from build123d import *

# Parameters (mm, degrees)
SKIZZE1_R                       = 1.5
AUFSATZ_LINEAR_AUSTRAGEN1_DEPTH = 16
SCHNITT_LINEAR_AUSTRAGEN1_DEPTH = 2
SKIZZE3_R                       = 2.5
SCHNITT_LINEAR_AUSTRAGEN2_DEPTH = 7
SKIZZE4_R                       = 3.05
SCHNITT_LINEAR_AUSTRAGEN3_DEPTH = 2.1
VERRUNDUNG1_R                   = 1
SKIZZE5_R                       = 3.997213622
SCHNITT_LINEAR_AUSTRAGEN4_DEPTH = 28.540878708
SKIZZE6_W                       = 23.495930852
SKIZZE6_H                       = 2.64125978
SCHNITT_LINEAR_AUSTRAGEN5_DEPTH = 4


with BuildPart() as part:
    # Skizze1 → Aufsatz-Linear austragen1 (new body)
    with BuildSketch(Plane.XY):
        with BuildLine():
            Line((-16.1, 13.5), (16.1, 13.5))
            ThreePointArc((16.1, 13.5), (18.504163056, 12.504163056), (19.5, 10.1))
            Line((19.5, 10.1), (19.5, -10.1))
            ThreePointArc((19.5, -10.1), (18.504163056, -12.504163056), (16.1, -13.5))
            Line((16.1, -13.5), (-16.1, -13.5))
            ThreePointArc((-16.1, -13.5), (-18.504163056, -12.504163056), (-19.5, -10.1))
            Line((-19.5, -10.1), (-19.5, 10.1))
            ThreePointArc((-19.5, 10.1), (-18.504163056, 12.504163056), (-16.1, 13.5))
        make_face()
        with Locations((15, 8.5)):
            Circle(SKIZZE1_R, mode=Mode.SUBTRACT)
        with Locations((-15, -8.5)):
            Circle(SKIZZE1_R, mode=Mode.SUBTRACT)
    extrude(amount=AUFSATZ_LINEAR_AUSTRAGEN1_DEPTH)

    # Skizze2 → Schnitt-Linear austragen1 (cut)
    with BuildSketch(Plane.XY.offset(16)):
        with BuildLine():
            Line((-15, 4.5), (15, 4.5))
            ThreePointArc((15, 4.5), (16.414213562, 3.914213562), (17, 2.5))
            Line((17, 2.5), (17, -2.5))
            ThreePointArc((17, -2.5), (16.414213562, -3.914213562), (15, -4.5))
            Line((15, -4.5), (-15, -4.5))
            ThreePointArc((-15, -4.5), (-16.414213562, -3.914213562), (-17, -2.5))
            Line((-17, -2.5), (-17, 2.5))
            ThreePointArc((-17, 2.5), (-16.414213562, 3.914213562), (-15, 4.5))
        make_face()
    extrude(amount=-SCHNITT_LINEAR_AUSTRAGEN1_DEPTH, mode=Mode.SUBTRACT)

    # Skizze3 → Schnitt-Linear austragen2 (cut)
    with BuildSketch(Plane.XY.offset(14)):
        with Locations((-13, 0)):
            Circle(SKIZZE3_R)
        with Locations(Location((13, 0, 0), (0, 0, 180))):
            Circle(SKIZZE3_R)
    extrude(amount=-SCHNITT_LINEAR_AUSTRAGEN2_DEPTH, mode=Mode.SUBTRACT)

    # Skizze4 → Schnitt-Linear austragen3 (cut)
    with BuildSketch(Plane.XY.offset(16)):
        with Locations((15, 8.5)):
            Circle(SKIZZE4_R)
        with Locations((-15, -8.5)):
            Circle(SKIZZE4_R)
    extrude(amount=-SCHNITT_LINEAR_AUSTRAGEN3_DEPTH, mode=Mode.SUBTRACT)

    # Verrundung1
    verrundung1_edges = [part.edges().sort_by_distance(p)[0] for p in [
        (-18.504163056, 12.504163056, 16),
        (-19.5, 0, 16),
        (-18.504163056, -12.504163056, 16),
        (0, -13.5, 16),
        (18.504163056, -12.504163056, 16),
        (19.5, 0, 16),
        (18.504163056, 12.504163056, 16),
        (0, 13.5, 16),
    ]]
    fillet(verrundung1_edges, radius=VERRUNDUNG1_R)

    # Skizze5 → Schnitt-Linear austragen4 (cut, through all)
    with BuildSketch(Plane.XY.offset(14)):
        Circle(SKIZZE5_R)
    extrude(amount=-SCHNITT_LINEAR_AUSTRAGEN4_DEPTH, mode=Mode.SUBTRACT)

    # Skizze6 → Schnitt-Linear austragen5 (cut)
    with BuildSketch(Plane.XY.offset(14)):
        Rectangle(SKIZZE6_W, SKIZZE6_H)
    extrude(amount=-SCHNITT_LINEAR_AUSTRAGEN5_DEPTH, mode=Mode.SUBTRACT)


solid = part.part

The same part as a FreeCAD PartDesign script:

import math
import FreeCAD as App
import Part
import Sketcher

V = App.Vector


def edges_at(feature, points):
    """Names of the edges that pass closest to the given points."""
    edges = feature.Shape.Edges
    near = lambda p: min(range(len(edges)), key=lambda i: edges[i].distToShape(Part.Vertex(*p))[0])
    return sorted({f"Edge{near(p) + 1}" for p in points})

doc = App.newDocument("Part")
body = doc.addObject("PartDesign::Body", "Body")

# Sketch on XY plane
sketch1 = doc.addObject("Sketcher::SketchObject", "Sketch")
body.addObject(sketch1)
sketch1.AttachmentSupport = (doc.XY_Plane, [""])
sketch1.MapMode = "FlatFace"
sketch1.addGeometry([
    Part.LineSegment(V(16.1, 13.5, 0), V(-16.1, 13.5, 0)),  # 0
    Part.ArcOfCircle(Part.Circle(V(-16.1, 10.1, 0), V(0, 0, 1), 3.4), math.radians(90), math.radians(180)),  # 1
    Part.LineSegment(V(-19.5, 10.1, 0), V(-19.5, -10.1, 0)),  # 2
    Part.ArcOfCircle(Part.Circle(V(-16.1, -10.1, 0), V(0, 0, 1), 3.4), math.radians(180), math.radians(270)),  # 3
    Part.LineSegment(V(-16.1, -13.5, 0), V(16.1, -13.5, 0)),  # 4
    Part.ArcOfCircle(Part.Circle(V(16.1, -10.1, 0), V(0, 0, 1), 3.4), math.radians(-90), math.radians(0)),  # 5
    Part.LineSegment(V(19.5, -10.1, 0), V(19.5, 10.1, 0)),  # 6
    Part.ArcOfCircle(Part.Circle(V(16.1, 10.1, 0), V(0, 0, 1), 3.4), math.radians(0), math.radians(90)),  # 7
    Part.Circle(V(-15, -8.5, 0), V(0, 0, 1), 1.5),  # 8
    Part.Circle(V(15, 8.5, 0), V(0, 0, 1), 1.5),  # 9
], False)
sketch1.addConstraint([
    Sketcher.Constraint("Tangent", 0, 2, 1, 1),
    Sketcher.Constraint("Tangent", 1, 2, 2, 1),
    Sketcher.Constraint("Tangent", 2, 2, 3, 1),
    Sketcher.Constraint("Tangent", 3, 2, 4, 1),
    Sketcher.Constraint("Tangent", 4, 2, 5, 1),
    Sketcher.Constraint("Tangent", 5, 2, 6, 1),
    Sketcher.Constraint("Tangent", 6, 2, 7, 1),
    Sketcher.Constraint("Tangent", 7, 2, 0, 1),
    Sketcher.Constraint("Horizontal", 0),
    Sketcher.Constraint("Vertical", 2),
    Sketcher.Constraint("Horizontal", 4),
    Sketcher.Constraint("Vertical", 6),
    Sketcher.Constraint("Equal", 1, 3),
    Sketcher.Constraint("Equal", 3, 5),
    Sketcher.Constraint("Equal", 5, 7),
    Sketcher.Constraint("Equal", 8, 9),
    Sketcher.Constraint("Symmetric", 1, 3, 5, 3, -1, 1),
    Sketcher.Constraint("Symmetric", 8, 3, 9, 3, -1, 1),
    Sketcher.Constraint("Diameter", 8, 3.0),
    Sketcher.Constraint("Radius", 1, 3.4),
    Sketcher.Constraint("DistanceX", 0, 2, 0, 1, 32.2),
    Sketcher.Constraint("DistanceY", 2, 2, 2, 1, 20.2),
    Sketcher.Constraint("DistanceX", 8, 3, -1, 1, 15.0),
    Sketcher.Constraint("DistanceY", 8, 3, 9, 3, 17.0),
])
pad1 = doc.addObject("PartDesign::Pad", "Pad")
body.addObject(pad1)
pad1.Profile = sketch1
pad1.Length = 16

# Sketch on XY plane
sketch2 = doc.addObject("Sketcher::SketchObject", "Sketch001")
body.addObject(sketch2)
sketch2.AttachmentSupport = (doc.XY_Plane, [""])
sketch2.MapMode = "FlatFace"
sketch2.AttachmentOffset = App.Placement(V(0, 0, 16), App.Rotation())
sketch2.addGeometry([
    Part.LineSegment(V(15, 4.5, 0), V(-15, 4.5, 0)),  # 0
    Part.ArcOfCircle(Part.Circle(V(-15, 2.5, 0), V(0, 0, 1), 2), math.radians(90), math.radians(180)),  # 1
    Part.LineSegment(V(-17, 2.5, 0), V(-17, -2.5, 0)),  # 2
    Part.ArcOfCircle(Part.Circle(V(-15, -2.5, 0), V(0, 0, 1), 2), math.radians(-180), math.radians(-90)),  # 3
    Part.LineSegment(V(-15, -4.5, 0), V(15, -4.5, 0)),  # 4
    Part.ArcOfCircle(Part.Circle(V(15, -2.5, 0), V(0, 0, 1), 2), math.radians(-90), math.radians(0)),  # 5
    Part.LineSegment(V(17, -2.5, 0), V(17, 2.5, 0)),  # 6
    Part.ArcOfCircle(Part.Circle(V(15, 2.5, 0), V(0, 0, 1), 2), math.radians(0), math.radians(90)),  # 7
], False)
sketch2.addConstraint([
    Sketcher.Constraint("Tangent", 0, 2, 1, 1),
    Sketcher.Constraint("Tangent", 1, 2, 2, 1),
    Sketcher.Constraint("Tangent", 2, 2, 3, 1),
    Sketcher.Constraint("Tangent", 3, 2, 4, 1),
    Sketcher.Constraint("Tangent", 4, 2, 5, 1),
    Sketcher.Constraint("Tangent", 5, 2, 6, 1),
    Sketcher.Constraint("Tangent", 6, 2, 7, 1),
    Sketcher.Constraint("Tangent", 7, 2, 0, 1),
    Sketcher.Constraint("Horizontal", 0),
    Sketcher.Constraint("Vertical", 2),
    Sketcher.Constraint("Horizontal", 4),
    Sketcher.Constraint("Vertical", 6),
    Sketcher.Constraint("Equal", 1, 3),
    Sketcher.Constraint("Equal", 3, 5),
    Sketcher.Constraint("Equal", 5, 7),
    Sketcher.Constraint("Symmetric", 1, 3, 5, 3, -1, 1),
    Sketcher.Constraint("Radius", 1, 2.0),
    Sketcher.Constraint("DistanceX", 0, 2, 0, 1, 30.0),
    Sketcher.Constraint("DistanceY", 2, 2, 2, 1, 5.0),
])
pocket1 = doc.addObject("PartDesign::Pocket", "Pocket")
body.addObject(pocket1)
pocket1.Profile = sketch2
pocket1.Length = 2

# Sketch on XY plane
sketch3 = doc.addObject("Sketcher::SketchObject", "Sketch002")
body.addObject(sketch3)
sketch3.AttachmentSupport = (doc.XY_Plane, [""])
sketch3.MapMode = "FlatFace"
sketch3.AttachmentOffset = App.Placement(V(0, 0, 14), App.Rotation())
sketch3.addGeometry([
    Part.Circle(V(-13, 0, 0), V(0, 0, 1), 2.5),
    Part.Circle(V(13, 0, 0), V(0, 0, 1), 2.5),
], False)
sketch3.addConstraint([
    Sketcher.Constraint("Equal", 0, 1),
    Sketcher.Constraint("Symmetric", 0, 3, 1, 3, -1, 1),
    Sketcher.Constraint("PointOnObject", 0, 3, -1),
    Sketcher.Constraint("Diameter", 0, 5.0),
    Sketcher.Constraint("DistanceX", 0, 3, -1, 1, 13.0),
])
pocket2 = doc.addObject("PartDesign::Pocket", "Pocket001")
body.addObject(pocket2)
pocket2.Profile = sketch3
pocket2.Length = 7

# Sketch on XY plane
sketch4 = doc.addObject("Sketcher::SketchObject", "Sketch003")
body.addObject(sketch4)
sketch4.AttachmentSupport = (doc.XY_Plane, [""])
sketch4.MapMode = "FlatFace"
sketch4.AttachmentOffset = App.Placement(V(0, 0, 16), App.Rotation())
sketch4.addGeometry([
    Part.Circle(V(15, 8.5, 0), V(0, 0, 1), 3),
    Part.Circle(V(-15, -8.5, 0), V(0, 0, 1), 3),
], False)
sketch4.addConstraint([
    Sketcher.Constraint("Equal", 0, 1),
    Sketcher.Constraint("Symmetric", 0, 3, 1, 3, -1, 1),
    Sketcher.Constraint("Diameter", 0, 6.1),
    Sketcher.Constraint("DistanceX", -1, 1, 0, 3, 15.0),
    Sketcher.Constraint("DistanceY", 1, 3, 0, 3, 17.0),
])
pocket3 = doc.addObject("PartDesign::Pocket", "Pocket002")
body.addObject(pocket3)
pocket3.Profile = sketch4
pocket3.Length = 2.1
doc.recompute()

fillet = doc.addObject("PartDesign::Fillet", "Fillet")
body.addObject(fillet)
fillet.Base = (pocket3, edges_at(pocket3, [
    (-18.504, 12.504, 16),
    (-19.5, 0, 16),
    (-18.504, -12.504, 16),
    (0, -13.5, 16),
    (18.504, -12.504, 16),
    (19.5, 0, 16),
    (18.504, 12.504, 16),
    (0, 13.5, 16),
]))
fillet.Radius = 1

# Sketch on XY plane
sketch5 = doc.addObject("Sketcher::SketchObject", "Sketch004")
body.addObject(sketch5)
sketch5.AttachmentSupport = (doc.XY_Plane, [""])
sketch5.MapMode = "FlatFace"
sketch5.AttachmentOffset = App.Placement(V(0, 0, 14), App.Rotation())
sketch5.addGeometry(Part.Circle(V(0, 0, 0), V(0, 0, 1), 4), False)
sketch5.addConstraint([
    Sketcher.Constraint("Coincident", 0, 3, -1, 1),
    Sketcher.Constraint("Diameter", 0, 7.994427),
])
pocket4 = doc.addObject("PartDesign::Pocket", "Pocket003")
body.addObject(pocket4)
pocket4.Profile = sketch5
pocket4.Type = "ThroughAll"

# Sketch on XY plane
sketch6 = doc.addObject("Sketcher::SketchObject", "Sketch005")
body.addObject(sketch6)
sketch6.AttachmentSupport = (doc.XY_Plane, [""])
sketch6.MapMode = "FlatFace"
sketch6.AttachmentOffset = App.Placement(V(0, 0, 14), App.Rotation())
sketch6.addGeometry([
    Part.LineSegment(V(-11.7, 1.3, 0), V(-11.7, -1.3, 0)),
    Part.LineSegment(V(-11.7, -1.3, 0), V(11.7, -1.3, 0)),
    Part.LineSegment(V(11.7, -1.3, 0), V(11.7, 1.3, 0)),
    Part.LineSegment(V(11.7, 1.3, 0), V(-11.7, 1.3, 0)),
], False)
sketch6.addConstraint([
    Sketcher.Constraint("Coincident", 0, 2, 1, 1),
    Sketcher.Constraint("Coincident", 1, 2, 2, 1),
    Sketcher.Constraint("Coincident", 2, 2, 3, 1),
    Sketcher.Constraint("Coincident", 3, 2, 0, 1),
    Sketcher.Constraint("Vertical", 0),
    Sketcher.Constraint("Horizontal", 1),
    Sketcher.Constraint("Vertical", 2),
    Sketcher.Constraint("Horizontal", 3),
    Sketcher.Constraint("Symmetric", 0, 2, 2, 2, -1, 1),
    Sketcher.Constraint("DistanceX", 1, 1, 1, 2, 23.495931),
    Sketcher.Constraint("DistanceY", 0, 2, 0, 1, 2.64126),
])
pocket5 = doc.addObject("PartDesign::Pocket", "Pocket004")
body.addObject(pocket5)
pocket5.Profile = sketch6
pocket5.Length = 4

doc.recompute()
